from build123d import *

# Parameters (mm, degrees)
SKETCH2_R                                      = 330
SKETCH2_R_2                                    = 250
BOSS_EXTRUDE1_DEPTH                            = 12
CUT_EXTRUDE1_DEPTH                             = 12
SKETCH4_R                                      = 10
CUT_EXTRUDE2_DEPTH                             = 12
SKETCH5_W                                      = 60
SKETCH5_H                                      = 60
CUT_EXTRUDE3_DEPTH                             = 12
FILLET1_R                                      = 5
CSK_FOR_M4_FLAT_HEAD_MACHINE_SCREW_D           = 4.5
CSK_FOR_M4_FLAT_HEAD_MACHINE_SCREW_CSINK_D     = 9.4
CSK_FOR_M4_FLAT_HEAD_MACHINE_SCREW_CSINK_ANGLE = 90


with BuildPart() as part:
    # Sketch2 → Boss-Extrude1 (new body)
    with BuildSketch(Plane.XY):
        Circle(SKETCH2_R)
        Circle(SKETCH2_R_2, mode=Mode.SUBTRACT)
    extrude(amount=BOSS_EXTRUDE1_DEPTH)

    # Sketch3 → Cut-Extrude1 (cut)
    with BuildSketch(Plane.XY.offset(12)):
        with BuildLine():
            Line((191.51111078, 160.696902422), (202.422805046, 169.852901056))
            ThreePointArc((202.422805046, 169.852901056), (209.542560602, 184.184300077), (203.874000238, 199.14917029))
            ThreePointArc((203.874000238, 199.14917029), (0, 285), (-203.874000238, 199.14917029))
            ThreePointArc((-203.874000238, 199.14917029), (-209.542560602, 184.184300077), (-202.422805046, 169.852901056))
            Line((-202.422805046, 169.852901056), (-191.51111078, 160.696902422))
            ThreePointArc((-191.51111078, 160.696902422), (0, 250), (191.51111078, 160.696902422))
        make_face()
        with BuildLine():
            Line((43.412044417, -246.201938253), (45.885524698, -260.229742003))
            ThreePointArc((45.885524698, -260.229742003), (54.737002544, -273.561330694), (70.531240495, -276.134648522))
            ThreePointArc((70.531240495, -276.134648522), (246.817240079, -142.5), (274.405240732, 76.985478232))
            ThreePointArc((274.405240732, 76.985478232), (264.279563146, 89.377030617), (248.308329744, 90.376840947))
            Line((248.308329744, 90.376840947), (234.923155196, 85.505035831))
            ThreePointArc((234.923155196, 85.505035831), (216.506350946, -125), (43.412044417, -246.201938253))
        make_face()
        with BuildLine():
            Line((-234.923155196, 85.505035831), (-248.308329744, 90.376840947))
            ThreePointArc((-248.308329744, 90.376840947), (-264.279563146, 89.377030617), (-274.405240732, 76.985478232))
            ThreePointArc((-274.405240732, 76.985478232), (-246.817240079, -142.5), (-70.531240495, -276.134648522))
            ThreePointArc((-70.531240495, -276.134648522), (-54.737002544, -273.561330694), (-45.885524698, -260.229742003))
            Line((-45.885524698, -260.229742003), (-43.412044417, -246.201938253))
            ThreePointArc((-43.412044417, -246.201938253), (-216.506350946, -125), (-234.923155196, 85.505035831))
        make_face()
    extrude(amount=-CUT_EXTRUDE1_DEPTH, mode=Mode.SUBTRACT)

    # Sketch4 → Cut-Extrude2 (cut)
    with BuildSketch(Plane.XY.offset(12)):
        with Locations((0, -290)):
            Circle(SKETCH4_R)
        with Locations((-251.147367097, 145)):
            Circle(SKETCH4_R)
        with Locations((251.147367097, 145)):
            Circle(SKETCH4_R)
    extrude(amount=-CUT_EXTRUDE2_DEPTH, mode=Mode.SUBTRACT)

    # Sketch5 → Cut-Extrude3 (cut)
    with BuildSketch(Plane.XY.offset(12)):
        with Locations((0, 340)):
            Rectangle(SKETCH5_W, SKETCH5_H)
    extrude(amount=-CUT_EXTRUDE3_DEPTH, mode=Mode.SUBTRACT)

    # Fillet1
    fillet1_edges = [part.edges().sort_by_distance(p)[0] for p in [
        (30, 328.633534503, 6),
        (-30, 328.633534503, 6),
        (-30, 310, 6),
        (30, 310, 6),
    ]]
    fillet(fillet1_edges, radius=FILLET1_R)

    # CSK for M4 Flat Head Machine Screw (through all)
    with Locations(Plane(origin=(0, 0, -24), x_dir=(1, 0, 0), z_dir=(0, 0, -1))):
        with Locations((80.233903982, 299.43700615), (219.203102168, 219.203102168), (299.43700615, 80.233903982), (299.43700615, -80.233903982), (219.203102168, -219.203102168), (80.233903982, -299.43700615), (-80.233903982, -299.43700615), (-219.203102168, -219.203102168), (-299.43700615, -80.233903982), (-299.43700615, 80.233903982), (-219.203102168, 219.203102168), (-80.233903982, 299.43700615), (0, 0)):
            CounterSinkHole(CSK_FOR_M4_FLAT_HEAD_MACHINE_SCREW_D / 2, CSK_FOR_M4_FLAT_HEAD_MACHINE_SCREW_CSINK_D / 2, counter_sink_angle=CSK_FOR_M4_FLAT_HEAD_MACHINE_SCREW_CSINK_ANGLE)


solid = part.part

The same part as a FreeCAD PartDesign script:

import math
import FreeCAD as App
import Part
import Sketcher
from FreeCAD import Vector
Q = App.Units.Quantity


def edges_at(feature, points):
    """Names of the edges that pass closest to the given points."""
    edges = feature.Shape.Edges
    near = lambda p: min(range(len(edges)), key=lambda i: edges[i].distToShape(Part.Vertex(*p))[0])
    return sorted({f"Edge{near(p) + 1}" for p in points})

doc = App.newDocument("Part")
params = doc.addObject("Spreadsheet::Sheet", "Params")
for row, (alias, value) in enumerate([
    ("sketch1_diameter", "660 mm"),
    ("sketch1_diameter2", "500 mm"),
    ("pad1_length", "12 mm"),
    ("sketch2_radius", "20 mm"),
    ("sketch2_radius2", "285 mm"),
    ("sketch2_radius3", "250 mm"),
    ("pocket1_length", "12 mm"),
    ("sketch3_diameter", "20 mm"),
    ("pocket2_length", "12 mm"),
    ("sketch4_width", "60 mm"),
    ("pocket3_length", "12 mm"),
    ("fillet_radius", "5 mm"),
    ("sketch5_diameter", "4.5 mm"),
    ("hole_diameter", "4.5 mm"),
    ("hole_csink_diameter", "9.4 mm"),
], start=1):
    params.set(f"A{row}", alias)
    params.set(f"B{row}", "=" + value)
    params.setAlias(f"B{row}", alias)

body = doc.addObject("PartDesign::Body", "Body")

# Sketch on XY plane
sketch1 = body.newObject("Sketcher::SketchObject", "Sketch")
sketch1.AttachmentSupport = (doc.getObject("XY_Plane"), [""])
sketch1.MapMode = "FlatFace"
sketch1.addGeometry([
    Part.Circle(Vector(0, 0, 0), Vector(0, 0, 1), 330),
    Part.Circle(Vector(0, 0, 0), Vector(0, 0, 1), 250),
], False)
sketch1.addConstraint([
    Sketcher.Constraint("Coincident", 0, 3, -1, 1),
    Sketcher.Constraint("Coincident", 1, 3, -1, 1),
    Sketcher.Constraint("Diameter", 0, 660.0),
    Sketcher.Constraint("Diameter", 1, 500.0),
])
sketch1.setExpression("Constraints[2]", "Params.sketch1_diameter")
sketch1.setExpression("Constraints[3]", "Params.sketch1_diameter2")
pad1 = body.newObject("PartDesign::Pad", "Pad")
pad1.Profile = sketch1
pad1.setExpression("Length", "Params.pad1_length")

# Sketch on XY plane
sketch2 = body.newObject("Sketcher::SketchObject", "Sketch001")
sketch2.AttachmentSupport = (doc.getObject("XY_Plane"), [""])
sketch2.MapMode = "FlatFace"
sketch2.AttachmentOffset = App.Placement(Vector(0, 0, 12), App.Rotation())
sketch2.addGeometry([
    Part.LineSegment(Vector(192, 161, 0), Vector(202, 170, 0)),  # 0
    Part.ArcOfCircle(Part.Circle(Vector(190, 185, 0), Vector(0, 0, 1), 20), math.radians(-50), math.radians(44)),  # 1
    Part.ArcOfCircle(Part.Circle(Vector(0, 0, 0), Vector(0, 0, 1), 285), math.radians(44), math.radians(136)),  # 2
    Part.ArcOfCircle(Part.Circle(Vector(-190, 185, 0), Vector(0, 0, 1), 20), math.radians(136), math.radians(230)),  # 3
    Part.LineSegment(Vector(-202, 170, 0), Vector(-192, 161, 0)),  # 4
    Part.ArcOfCircle(Part.Circle(Vector(0, 0, 0), Vector(0, 0, 1), 250), math.radians(40), math.radians(140)),  # 5
    Part.LineSegment(Vector(43, -246, 0), Vector(46, -260, 0)),  # 6
    Part.ArcOfCircle(Part.Circle(Vector(66, -257, 0), Vector(0, 0, 1), 20), math.radians(-170), math.radians(-76)),  # 7
    Part.ArcOfCircle(Part.Circle(Vector(0, 0, 0), Vector(0, 0, 1), 285), math.radians(-76), math.radians(16)),  # 8
    Part.ArcOfCircle(Part.Circle(Vector(255, 72, 0), Vector(0, 0, 1), 20), math.radians(16), math.radians(110)),  # 9
    Part.LineSegment(Vector(248, 90, 0), Vector(235, 86, 0)),  # 10
    Part.ArcOfCircle(Part.Circle(Vector(0, 0, 0), Vector(0, 0, 1), 250), math.radians(-80), math.radians(20)),  # 11
    Part.LineSegment(Vector(-235, 86, 0), Vector(-248, 90, 0)),  # 12
    Part.ArcOfCircle(Part.Circle(Vector(-255, 72, 0), Vector(0, 0, 1), 20), math.radians(70), math.radians(164)),  # 13
    Part.ArcOfCircle(Part.Circle(Vector(0, 0, 0), Vector(0, 0, 1), 285), math.radians(164), math.radians(256)),  # 14
    Part.ArcOfCircle(Part.Circle(Vector(-66, -257, 0), Vector(0, 0, 1), 20), math.radians(-104), math.radians(-10)),  # 15
    Part.LineSegment(Vector(-46, -260, 0), Vector(-43, -246, 0)),  # 16
    Part.ArcOfCircle(Part.Circle(Vector(0, 0, 0), Vector(0, 0, 1), 250), math.radians(160), math.radians(260)),  # 17
], False)
sketch2.addConstraint([
    Sketcher.Constraint("Tangent", 0, 2, 1, 1),
    Sketcher.Constraint("Tangent", 1, 2, 2, 1),
    Sketcher.Constraint("Tangent", 2, 2, 3, 1),
    Sketcher.Constraint("Tangent", 3, 2, 4, 1),
    Sketcher.Constraint("Coincident", 4, 2, 5, 2),
    Sketcher.Constraint("Coincident", 5, 1, 0, 1),
    Sketcher.Constraint("Tangent", 6, 2, 7, 1),
    Sketcher.Constraint("Tangent", 7, 2, 8, 1),
    Sketcher.Constraint("Tangent", 8, 2, 9, 1),
    Sketcher.Constraint("Tangent", 9, 2, 10, 1),
    Sketcher.Constraint("Coincident", 10, 2, 11, 2),
    Sketcher.Constraint("Coincident", 11, 1, 6, 1),
    Sketcher.Constraint("Tangent", 12, 2, 13, 1),
    Sketcher.Constraint("Tangent", 13, 2, 14, 1),
    Sketcher.Constraint("Tangent", 14, 2, 15, 1),
    Sketcher.Constraint("Tangent", 15, 2, 16, 1),
    Sketcher.Constraint("Coincident", 16, 2, 17, 2),
    Sketcher.Constraint("Coincident", 17, 1, 12, 1),
    Sketcher.Constraint("Coincident", 2, 3, -1, 1),
    Sketcher.Constraint("Coincident", 5, 3, -1, 1),
    Sketcher.Constraint("Coincident", 8, 3, -1, 1),
    Sketcher.Constraint("Coincident", 11, 3, -1, 1),
    Sketcher.Constraint("Coincident", 14, 3, -1, 1),
    Sketcher.Constraint("Coincident", 17, 3, -1, 1),
    Sketcher.Constraint("Equal", 1, 3),
    Sketcher.Constraint("Equal", 3, 7),
    Sketcher.Constraint("Equal", 2, 8),
    Sketcher.Constraint("Equal", 7, 9),
    Sketcher.Constraint("Equal", 5, 11),
    Sketcher.Constraint("Equal", 9, 13),
    Sketcher.Constraint("Equal", 8, 14),
    Sketcher.Constraint("Equal", 13, 15),
    Sketcher.Constraint("Equal", 11, 17),
    Sketcher.Constraint("Symmetric", 0, 2, 3, 2, -2),
    Sketcher.Constraint("Symmetric", 9, 2, 12, 2, -2),
    Sketcher.Constraint("Symmetric", 6, 2, 15, 2, -2),
    Sketcher.Constraint("Equal", 4, 6),
    Sketcher.Constraint("Equal", 6, 10),
    Sketcher.Constraint("Radius", 1, 20.0),
    Sketcher.Constraint("Radius", 2, 285.0),
    Sketcher.Constraint("Radius", 5, 250.0),
    Sketcher.Constraint("Angle", 0, Q("40 deg")),
    Sketcher.Constraint("Angle", 6, Q("-80 deg")),
    Sketcher.Constraint("Angle", 10, Q("-160 deg")),
    Sketcher.Constraint("DistanceX", -1, 1, 1, 2, 203.874),
])
sketch2.setExpression("Constraints[38]", "Params.sketch2_radius")
sketch2.setExpression("Constraints[39]", "Params.sketch2_radius2")
sketch2.setExpression("Constraints[40]", "Params.sketch2_radius3")
pocket1 = body.newObject("PartDesign::Pocket", "Pocket")
pocket1.Profile = sketch2
pocket1.setExpression("Length", "Params.pocket1_length")

# Sketch on XY plane
sketch3 = body.newObject("Sketcher::SketchObject", "Sketch002")
sketch3.AttachmentSupport = (doc.getObject("XY_Plane"), [""])
sketch3.MapMode = "FlatFace"
sketch3.AttachmentOffset = App.Placement(Vector(0, 0, 12), App.Rotation())
sketch3.addGeometry([
    Part.Circle(Vector(0, -290, 0), Vector(0, 0, 1), 10),
    Part.Circle(Vector(-251, 145, 0), Vector(0, 0, 1), 10),
    Part.Circle(Vector(251, 145, 0), Vector(0, 0, 1), 10),
], False)
sketch3.addConstraint([
    Sketcher.Constraint("Equal", 0, 1),
    Sketcher.Constraint("Equal", 1, 2),
    Sketcher.Constraint("Symmetric", 1, 3, 2, 3, -2),
    Sketcher.Constraint("PointOnObject", 0, 3, -2),
    Sketcher.Constraint("Diameter", 0, 20.0),
    Sketcher.Constraint("DistanceY", 0, 3, -1, 1, 290.0),
    Sketcher.Constraint("DistanceY", -1, 1, 1, 3, 145.0),
    Sketcher.Constraint("DistanceX", 1, 3, -1, 1, 251.147367),
])
sketch3.setExpression("Constraints[4]", "Params.sketch3_diameter")
pocket2 = body.newObject("PartDesign::Pocket", "Pocket001")
pocket2.Profile = sketch3
pocket2.setExpression("Length", "Params.pocket2_length")

# Sketch on XY plane
sketch4 = body.newObject("Sketcher::SketchObject", "Sketch003")
sketch4.AttachmentSupport = (doc.getObject("XY_Plane"), [""])
sketch4.MapMode = "FlatFace"
sketch4.AttachmentOffset = App.Placement(Vector(0, 0, 12), App.Rotation())
sketch4.addGeometry([
    Part.LineSegment(Vector(-30, 370, 0), Vector(-30, 310, 0)),
    Part.LineSegment(Vector(-30, 310, 0), Vector(30, 310, 0)),
    Part.LineSegment(Vector(30, 310, 0), Vector(30, 370, 0)),
    Part.LineSegment(Vector(30, 370, 0), Vector(-30, 370, 0)),
], False)
sketch4.addConstraint([
    Sketcher.Constraint("Coincident", 0, 2, 1, 1),
    Sketcher.Constraint("Coincident", 1, 2, 2, 1),
    Sketcher.Constraint("Coincident", 2, 2, 3, 1),
    Sketcher.Constraint("Coincident", 3, 2, 0, 1),
    Sketcher.Constraint("Vertical", 0),
    Sketcher.Constraint("Horizontal", 1),
    Sketcher.Constraint("Vertical", 2),
    Sketcher.Constraint("Horizontal", 3),
    Sketcher.Constraint("Equal", 3, 0),
    Sketcher.Constraint("DistanceX", 1, 1, 1, 2, 60.0),
    Sketcher.Constraint("DistanceX", 0, 2, -1, 1, 30.0),
    Sketcher.Constraint("DistanceY", -1, 1, 0, 2, 310.0),
])
sketch4.setExpression("Constraints[9]", "Params.sketch4_width")
pocket3 = body.newObject("PartDesign::Pocket", "Pocket002")
pocket3.Profile = sketch4
pocket3.setExpression("Length", "Params.pocket3_length")
doc.recompute()

fillet = body.newObject("PartDesign::Fillet", "Fillet")
fillet.Base = (pocket3, edges_at(pocket3, [
    (30, 328.634, 6),
    (-30, 328.634, 6),
    (-30, 310, 6),
    (30, 310, 6),
]))
fillet.setExpression("Radius", "Params.fillet_radius")

# Sketch on XY plane
sketch5 = body.newObject("Sketcher::SketchObject", "Sketch004")
sketch5.AttachmentSupport = (doc.getObject("XY_Plane"), [""])
sketch5.MapMode = "FlatFace"
sketch5.AttachmentOffset = App.Placement(Vector(0, 0, -24), App.Rotation())
sketch5.addGeometry([
    Part.Circle(Vector(80.2, -299.4, 0), Vector(0, 0, 1), 2.2),  # 0
    Part.Circle(Vector(219.2, -219.2, 0), Vector(0, 0, 1), 2.2),  # 1
    Part.Circle(Vector(299.4, -80.2, 0), Vector(0, 0, 1), 2.2),  # 2
    Part.Circle(Vector(299.4, 80.2, 0), Vector(0, 0, 1), 2.2),  # 3
    Part.Circle(Vector(219.2, 219.2, 0), Vector(0, 0, 1), 2.2),  # 4
    Part.Circle(Vector(80.2, 299.4, 0), Vector(0, 0, 1), 2.2),  # 5
    Part.Circle(Vector(-80.2, 299.4, 0), Vector(0, 0, 1), 2.2),  # 6
    Part.Circle(Vector(-219.2, 219.2, 0), Vector(0, 0, 1), 2.2),  # 7
    Part.Circle(Vector(-299.4, 80.2, 0), Vector(0, 0, 1), 2.2),  # 8
    Part.Circle(Vector(-299.4, -80.2, 0), Vector(0, 0, 1), 2.2),  # 9
    Part.Circle(Vector(-219.2, -219.2, 0), Vector(0, 0, 1), 2.2),  # 10
    Part.Circle(Vector(-80.2, -299.4, 0), Vector(0, 0, 1), 2.2),  # 11
    Part.Circle(Vector(0, 0, 0), Vector(0, 0, 1), 2.2),  # 12
], False)
sketch5.addConstraint([
    Sketcher.Constraint("Coincident", 12, 3, -1, 1),
    Sketcher.Constraint("Equal", 0, 1),
    Sketcher.Constraint("Equal", 1, 2),
    Sketcher.Constraint("Equal", 2, 3),
    Sketcher.Constraint("Equal", 3, 4),
    Sketcher.Constraint("Equal", 4, 5),
    Sketcher.Constraint("Equal", 5, 6),
    Sketcher.Constraint("Equal", 6, 7),
    Sketcher.Constraint("Equal", 7, 8),
    Sketcher.Constraint("Equal", 8, 9),
    Sketcher.Constraint("Equal", 9, 10),
    Sketcher.Constraint("Equal", 10, 11),
    Sketcher.Constraint("Equal", 11, 12),
    Sketcher.Constraint("Symmetric", 0, 3, 6, 3, -1, 1),
    Sketcher.Constraint("Symmetric", 1, 3, 7, 3, -1, 1),
    Sketcher.Constraint("Symmetric", 2, 3, 8, 3, -1, 1),
    Sketcher.Constraint("Symmetric", 3, 3, 9, 3, -1, 1),
    Sketcher.Constraint("Symmetric", 4, 3, 10, 3, -1, 1),
    Sketcher.Constraint("Symmetric", 5, 3, 11, 3, -1, 1),
    Sketcher.Constraint("Symmetric", 5, 3, 6, 3, -2),
    Sketcher.Constraint("Symmetric", 4, 3, 7, 3, -2),
    Sketcher.Constraint("Symmetric", 3, 3, 8, 3, -2),
    Sketcher.Constraint("Diameter", 0, 4.5),
    Sketcher.Constraint("DistanceX", 0, 3, 1, 3, 138.969198),
    Sketcher.Constraint("DistanceY", 1, 3, 2, 3, 138.969198),
    Sketcher.Constraint("DistanceY", 0, 3, 3, 3, 379.67091),
    Sketcher.Constraint("DistanceX", 6, 3, 3, 3, 379.67091),
    Sketcher.Constraint("DistanceX", -1, 1, 0, 3, 80.233904),
    Sketcher.Constraint("DistanceY", 0, 3, -1, 1, 299.437006),
])
sketch5.setExpression("Constraints[22]", "Params.sketch5_diameter")
doc.recompute()
hole = body.newObject("PartDesign::Hole", "Hole")
hole.Profile = sketch5
hole.ThreadType = "None"
hole.setExpression("Diameter", "Params.hole_diameter")
hole.DepthType = "ThroughAll"
hole.HoleCutType = "Countersink"
hole.setExpression("HoleCutDiameter", "Params.hole_csink_diameter")
hole.HoleCutCountersinkAngle = 90
hole.Reversed = True

doc.recompute()
